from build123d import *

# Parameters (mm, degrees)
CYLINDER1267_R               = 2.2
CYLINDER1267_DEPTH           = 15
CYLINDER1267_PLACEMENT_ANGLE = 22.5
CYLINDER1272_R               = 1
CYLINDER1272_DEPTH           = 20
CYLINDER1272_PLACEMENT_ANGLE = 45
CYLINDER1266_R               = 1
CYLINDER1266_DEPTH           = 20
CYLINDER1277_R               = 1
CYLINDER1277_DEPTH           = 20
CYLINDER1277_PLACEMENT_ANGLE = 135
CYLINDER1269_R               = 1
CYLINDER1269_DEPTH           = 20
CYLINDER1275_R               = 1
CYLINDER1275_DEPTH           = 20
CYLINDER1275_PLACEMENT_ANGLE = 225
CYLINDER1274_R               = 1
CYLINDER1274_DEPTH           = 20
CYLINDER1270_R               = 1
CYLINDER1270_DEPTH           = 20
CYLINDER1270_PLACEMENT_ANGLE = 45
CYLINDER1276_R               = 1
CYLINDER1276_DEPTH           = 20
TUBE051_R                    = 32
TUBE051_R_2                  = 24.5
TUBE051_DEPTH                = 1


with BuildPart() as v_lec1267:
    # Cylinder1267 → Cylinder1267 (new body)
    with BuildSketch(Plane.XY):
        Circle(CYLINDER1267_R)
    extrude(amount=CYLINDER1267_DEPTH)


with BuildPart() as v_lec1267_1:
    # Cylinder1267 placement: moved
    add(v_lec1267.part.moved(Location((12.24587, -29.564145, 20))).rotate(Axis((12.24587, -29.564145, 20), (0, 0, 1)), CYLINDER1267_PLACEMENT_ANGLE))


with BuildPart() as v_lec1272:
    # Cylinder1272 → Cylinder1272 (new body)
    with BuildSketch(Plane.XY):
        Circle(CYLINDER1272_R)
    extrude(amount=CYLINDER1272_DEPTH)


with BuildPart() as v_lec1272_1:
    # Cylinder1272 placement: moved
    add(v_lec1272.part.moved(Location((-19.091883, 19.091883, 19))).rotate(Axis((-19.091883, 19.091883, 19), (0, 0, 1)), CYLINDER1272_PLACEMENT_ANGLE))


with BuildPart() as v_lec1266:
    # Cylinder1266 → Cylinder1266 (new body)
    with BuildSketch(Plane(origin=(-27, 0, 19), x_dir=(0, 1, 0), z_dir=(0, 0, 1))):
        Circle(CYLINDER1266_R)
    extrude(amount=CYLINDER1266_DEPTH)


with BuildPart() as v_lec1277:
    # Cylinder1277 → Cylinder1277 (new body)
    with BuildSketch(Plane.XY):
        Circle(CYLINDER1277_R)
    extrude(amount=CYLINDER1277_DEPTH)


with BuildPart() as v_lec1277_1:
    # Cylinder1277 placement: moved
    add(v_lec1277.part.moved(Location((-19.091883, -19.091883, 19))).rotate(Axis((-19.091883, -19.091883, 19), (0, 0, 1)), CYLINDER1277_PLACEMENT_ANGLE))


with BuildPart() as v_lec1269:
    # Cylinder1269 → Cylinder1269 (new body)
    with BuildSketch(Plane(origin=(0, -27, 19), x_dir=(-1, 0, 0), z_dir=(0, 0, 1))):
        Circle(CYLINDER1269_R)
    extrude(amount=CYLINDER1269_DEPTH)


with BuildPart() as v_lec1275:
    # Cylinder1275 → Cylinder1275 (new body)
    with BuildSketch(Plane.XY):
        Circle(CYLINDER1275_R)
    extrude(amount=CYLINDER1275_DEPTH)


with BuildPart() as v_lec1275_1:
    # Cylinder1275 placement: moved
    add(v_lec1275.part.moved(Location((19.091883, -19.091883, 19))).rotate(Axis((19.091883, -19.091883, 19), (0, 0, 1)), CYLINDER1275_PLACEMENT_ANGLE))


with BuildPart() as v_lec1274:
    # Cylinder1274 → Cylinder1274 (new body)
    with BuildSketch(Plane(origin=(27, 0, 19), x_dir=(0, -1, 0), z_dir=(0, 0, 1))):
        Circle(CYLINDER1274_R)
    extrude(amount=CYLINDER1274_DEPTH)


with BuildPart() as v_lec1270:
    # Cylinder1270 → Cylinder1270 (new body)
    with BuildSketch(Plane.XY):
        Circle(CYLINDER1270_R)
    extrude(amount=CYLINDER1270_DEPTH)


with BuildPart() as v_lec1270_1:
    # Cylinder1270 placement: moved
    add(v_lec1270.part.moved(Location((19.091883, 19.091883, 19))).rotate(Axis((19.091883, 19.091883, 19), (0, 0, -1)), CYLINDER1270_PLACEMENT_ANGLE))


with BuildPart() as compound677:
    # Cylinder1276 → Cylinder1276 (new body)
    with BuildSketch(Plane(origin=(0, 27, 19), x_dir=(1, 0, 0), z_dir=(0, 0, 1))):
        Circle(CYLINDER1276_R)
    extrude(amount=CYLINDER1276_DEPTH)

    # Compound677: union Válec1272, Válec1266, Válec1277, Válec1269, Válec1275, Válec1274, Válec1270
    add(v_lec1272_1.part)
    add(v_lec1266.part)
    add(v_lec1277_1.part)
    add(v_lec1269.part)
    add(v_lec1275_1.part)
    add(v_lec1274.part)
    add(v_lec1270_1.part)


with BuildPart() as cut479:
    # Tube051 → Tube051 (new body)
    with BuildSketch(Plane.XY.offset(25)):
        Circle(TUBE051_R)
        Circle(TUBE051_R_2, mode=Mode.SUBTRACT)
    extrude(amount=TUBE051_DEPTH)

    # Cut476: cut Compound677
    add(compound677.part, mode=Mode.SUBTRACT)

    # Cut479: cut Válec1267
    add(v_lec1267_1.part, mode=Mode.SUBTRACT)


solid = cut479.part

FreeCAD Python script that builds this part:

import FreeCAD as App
import Part
import Sketcher

V = App.Vector
Q = App.Units.Quantity

doc = App.newDocument("Part")
body = doc.addObject("PartDesign::Body", "Body")

# Sketch on XY plane
sketch1 = body.newObject("Sketcher::SketchObject", "Sketch")
sketch1.AttachmentSupport = (doc.getObject("XY_Plane"), [""])
sketch1.MapMode = "FlatFace"
sketch1.addGeometry(Part.Circle(V(0, 0, 0), V(0, 0, 1), 2.2), False)
sketch1.addConstraint([
    Sketcher.Constraint("Coincident", 0, 3, -1, 1),
    Sketcher.Constraint("Diameter", 0, Q("4.4 mm")),
])
pad1 = body.newObject("PartDesign::Pad", "Pad")
pad1.Profile = sketch1
pad1.Length = 15
body2 = doc.addObject("PartDesign::Body", "Body001")
doc.recompute()

body.Placement = App.Placement(V(12.24587, -29.564145, 20), App.Rotation(V(0, 0, 1), 22.5))
boolean = body2.newObject("PartDesign::Boolean", "Boolean")
boolean.Type = "Fuse"
boolean.addObjects([body])
body3 = doc.addObject("PartDesign::Body", "Body002")

# Sketch on XY plane
sketch2 = body3.newObject("Sketcher::SketchObject", "Sketch001")
sketch2.AttachmentSupport = (doc.getObject("XY_Plane002"), [""])
sketch2.MapMode = "FlatFace"
sketch2.addGeometry(Part.Circle(V(0, 0, 0), V(0, 0, 1), 1), False)
sketch2.addConstraint([
    Sketcher.Constraint("Coincident", 0, 3, -1, 1),
    Sketcher.Constraint("Diameter", 0, Q("2 mm")),
])
pad2 = body3.newObject("PartDesign::Pad", "Pad001")
pad2.Profile = sketch2
pad2.Length = 20
body4 = doc.addObject("PartDesign::Body", "Body003")
doc.recompute()

body3.Placement = App.Placement(V(-19.091883, 19.091883, 19), App.Rotation(V(0, 0, 1), 45))
boolean2 = body4.newObject("PartDesign::Boolean", "Boolean001")
boolean2.Type = "Fuse"
boolean2.addObjects([body3])
body5 = doc.addObject("PartDesign::Body", "Body004")

# Sketch on XY plane
sketch3 = body5.newObject("Sketcher::SketchObject", "Sketch002")
sketch3.AttachmentSupport = (doc.getObject("XY_Plane004"), [""])
sketch3.MapMode = "FlatFace"
sketch3.AttachmentOffset = App.Placement(V(0, 0, 19), App.Rotation())
sketch3.addGeometry(Part.Circle(V(-27, 0, 0), V(0, 0, 1), 1), False)
sketch3.addConstraint([
    Sketcher.Constraint("PointOnObject", 0, 3, -1),
    Sketcher.Constraint("Diameter", 0, Q("2 mm")),
    Sketcher.Constraint("DistanceX", 0, 3, -1, 1, Q("27 mm")),
])
pad3 = body5.newObject("PartDesign::Pad", "Pad002")
pad3.Profile = sketch3
pad3.Length = 20
body6 = doc.addObject("PartDesign::Body", "Body005")

# Sketch on XY plane
sketch4 = body6.newObject("Sketcher::SketchObject", "Sketch003")
sketch4.AttachmentSupport = (doc.getObject("XY_Plane005"), [""])
sketch4.MapMode = "FlatFace"
sketch4.addGeometry(Part.Circle(V(0, 0, 0), V(0, 0, 1), 1), False)
sketch4.addConstraint([
    Sketcher.Constraint("Coincident", 0, 3, -1, 1),
    Sketcher.Constraint("Diameter", 0, Q("2 mm")),
])
pad4 = body6.newObject("PartDesign::Pad", "Pad003")
pad4.Profile = sketch4
pad4.Length = 20
body7 = doc.addObject("PartDesign::Body", "Body006")
doc.recompute()

body6.Placement = App.Placement(V(-19.091883, -19.091883, 19), App.Rotation(V(0, 0, 1), 135))
boolean3 = body7.newObject("PartDesign::Boolean", "Boolean002")
boolean3.Type = "Fuse"
boolean3.addObjects([body6])
body8 = doc.addObject("PartDesign::Body", "Body007")

# Sketch on XY plane
sketch5 = body8.newObject("Sketcher::SketchObject", "Sketch004")
sketch5.AttachmentSupport = (doc.getObject("XY_Plane007"), [""])
sketch5.MapMode = "FlatFace"
sketch5.AttachmentOffset = App.Placement(V(0, 0, 19), App.Rotation())
sketch5.addGeometry(Part.Circle(V(0, -27, 0), V(0, 0, 1), 1), False)
sketch5.addConstraint([
    Sketcher.Constraint("PointOnObject", 0, 3, -2),
    Sketcher.Constraint("Diameter", 0, Q("2 mm")),
    Sketcher.Constraint("DistanceY", 0, 3, -1, 1, Q("27 mm")),
])
pad5 = body8.newObject("PartDesign::Pad", "Pad004")
pad5.Profile = sketch5
pad5.Length = 20
body9 = doc.addObject("PartDesign::Body", "Body008")

# Sketch on XY plane
sketch6 = body9.newObject("Sketcher::SketchObject", "Sketch005")
sketch6.AttachmentSupport = (doc.getObject("XY_Plane008"), [""])
sketch6.MapMode = "FlatFace"
sketch6.addGeometry(Part.Circle(V(0, 0, 0), V(0, 0, 1), 1), False)
sketch6.addConstraint([
    Sketcher.Constraint("Coincident", 0, 3, -1, 1),
    Sketcher.Constraint("Diameter", 0, Q("2 mm")),
])
pad6 = body9.newObject("PartDesign::Pad", "Pad005")
pad6.Profile = sketch6
pad6.Length = 20
body10 = doc.addObject("PartDesign::Body", "Body009")
doc.recompute()

body9.Placement = App.Placement(V(19.091883, -19.091883, 19), App.Rotation(V(0, 0, 1), 225))
boolean4 = body10.newObject("PartDesign::Boolean", "Boolean003")
boolean4.Type = "Fuse"
boolean4.addObjects([body9])
body11 = doc.addObject("PartDesign::Body", "Body010")

# Sketch on XY plane
sketch7 = body11.newObject("Sketcher::SketchObject", "Sketch006")
sketch7.AttachmentSupport = (doc.getObject("XY_Plane010"), [""])
sketch7.MapMode = "FlatFace"
sketch7.AttachmentOffset = App.Placement(V(0, 0, 19), App.Rotation())
sketch7.addGeometry(Part.Circle(V(27, 0, 0), V(0, 0, 1), 1), False)
sketch7.addConstraint([
    Sketcher.Constraint("PointOnObject", 0, 3, -1),
    Sketcher.Constraint("Diameter", 0, Q("2 mm")),
    Sketcher.Constraint("DistanceX", -1, 1, 0, 3, Q("27 mm")),
])
pad7 = body11.newObject("PartDesign::Pad", "Pad006")
pad7.Profile = sketch7
pad7.Length = 20
body12 = doc.addObject("PartDesign::Body", "Body011")

# Sketch on XY plane
sketch8 = body12.newObject("Sketcher::SketchObject", "Sketch007")
sketch8.AttachmentSupport = (doc.getObject("XY_Plane011"), [""])
sketch8.MapMode = "FlatFace"
sketch8.addGeometry(Part.Circle(V(0, 0, 0), V(0, 0, 1), 1), False)
sketch8.addConstraint([
    Sketcher.Constraint("Coincident", 0, 3, -1, 1),
    Sketcher.Constraint("Diameter", 0, Q("2 mm")),
])
pad8 = body12.newObject("PartDesign::Pad", "Pad007")
pad8.Profile = sketch8
pad8.Length = 20
body13 = doc.addObject("PartDesign::Body", "Body012")
doc.recompute()

body12.Placement = App.Placement(V(19.091883, 19.091883, 19), App.Rotation(V(0, 0, -1), 45))
boolean5 = body13.newObject("PartDesign::Boolean", "Boolean004")
boolean5.Type = "Fuse"
boolean5.addObjects([body12])
body14 = doc.addObject("PartDesign::Body", "Body013")
body14.AllowCompound = True

# Sketch on XY plane
sketch9 = body14.newObject("Sketcher::SketchObject", "Sketch008")
sketch9.AttachmentSupport = (doc.getObject("XY_Plane013"), [""])
sketch9.MapMode = "FlatFace"
sketch9.AttachmentOffset = App.Placement(V(0, 0, 19), App.Rotation())
sketch9.addGeometry(Part.Circle(V(0, 27, 0), V(0, 0, 1), 1), False)
sketch9.addConstraint([
    Sketcher.Constraint("PointOnObject", 0, 3, -2),
    Sketcher.Constraint("Diameter", 0, Q("2 mm")),
    Sketcher.Constraint("DistanceY", -1, 1, 0, 3, Q("27 mm")),
])
pad9 = body14.newObject("PartDesign::Pad", "Pad008")
pad9.Profile = sketch9
pad9.Length = 20
doc.recompute()

boolean6 = body14.newObject("PartDesign::Boolean", "Boolean005")
boolean6.Type = "Fuse"
boolean6.addObjects([body4])
doc.recompute()

boolean7 = body14.newObject("PartDesign::Boolean", "Boolean006")
boolean7.Type = "Fuse"
boolean7.addObjects([body5])
doc.recompute()

boolean8 = body14.newObject("PartDesign::Boolean", "Boolean007")
boolean8.Type = "Fuse"
boolean8.addObjects([body7])
doc.recompute()

boolean9 = body14.newObject("PartDesign::Boolean", "Boolean008")
boolean9.Type = "Fuse"
boolean9.addObjects([body8])
doc.recompute()

boolean10 = body14.newObject("PartDesign::Boolean", "Boolean009")
boolean10.Type = "Fuse"
boolean10.addObjects([body10])
doc.recompute()

boolean11 = body14.newObject("PartDesign::Boolean", "Boolean010")
boolean11.Type = "Fuse"
boolean11.addObjects([body11])
doc.recompute()

boolean12 = body14.newObject("PartDesign::Boolean", "Boolean011")
boolean12.Type = "Fuse"
boolean12.addObjects([body13])
body15 = doc.addObject("PartDesign::Body", "Body014")

# Sketch on XY plane
sketch10 = body15.newObject("Sketcher::SketchObject", "Sketch009")
sketch10.AttachmentSupport = (doc.getObject("XY_Plane014"), [""])
sketch10.MapMode = "FlatFace"
sketch10.AttachmentOffset = App.Placement(V(0, 0, 25), App.Rotation())
sketch10.addGeometry([
    Part.Circle(V(0, 0, 0), V(0, 0, 1), 32),
    Part.Circle(V(0, 0, 0), V(0, 0, 1), 24),
], False)
sketch10.addConstraint([
    Sketcher.Constraint("Coincident", 0, 3, -1, 1),
    Sketcher.Constraint("Coincident", 1, 3, -1, 1),
    Sketcher.Constraint("Diameter", 0, Q("64 mm")),
    Sketcher.Constraint("Diameter", 1, Q("49 mm")),
])
pad10 = body15.newObject("PartDesign::Pad", "Pad009")
pad10.Profile = sketch10
pad10.Length = 1
doc.recompute()

boolean13 = body15.newObject("PartDesign::Boolean", "Boolean012")
boolean13.Type = "Cut"
boolean13.addObjects([body14])
doc.recompute()

boolean14 = body15.newObject("PartDesign::Boolean", "Boolean013")
boolean14.Type = "Cut"
boolean14.addObjects([body2])

doc.recompute()
